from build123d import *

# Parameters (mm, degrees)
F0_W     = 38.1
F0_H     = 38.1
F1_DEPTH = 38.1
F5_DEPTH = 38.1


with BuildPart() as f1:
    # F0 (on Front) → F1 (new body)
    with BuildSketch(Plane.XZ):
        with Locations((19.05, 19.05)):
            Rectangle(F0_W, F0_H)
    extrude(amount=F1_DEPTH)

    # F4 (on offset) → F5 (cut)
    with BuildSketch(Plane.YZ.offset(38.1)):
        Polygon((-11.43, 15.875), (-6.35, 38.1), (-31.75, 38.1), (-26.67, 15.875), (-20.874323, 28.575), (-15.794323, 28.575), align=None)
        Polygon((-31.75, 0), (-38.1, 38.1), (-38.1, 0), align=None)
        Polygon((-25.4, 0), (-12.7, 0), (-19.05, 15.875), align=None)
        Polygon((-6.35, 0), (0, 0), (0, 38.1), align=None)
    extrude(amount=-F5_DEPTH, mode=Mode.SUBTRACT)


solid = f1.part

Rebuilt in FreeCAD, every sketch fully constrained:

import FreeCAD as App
import Part
import Sketcher
from FreeCAD import Vector
Q = App.Units.Quantity

doc = App.newDocument("Part")
body = doc.addObject("PartDesign::Body", "Body")

sketch1 = body.newObject("Sketcher::SketchObject", "Sketch")
sketch1.AttachmentSupport = (doc.getObject("XZ_Plane"), [""])
sketch1.MapMode = "FlatFace"
sketch1.addGeometry(Part.LineSegment(Vector(0, 38, 0), Vector(0, 0, 0)), False)
sketch1.addGeometry(Part.LineSegment(Vector(0, 0, 0), Vector(38, 0, 0)), False)
sketch1.addGeometry(Part.LineSegment(Vector(38, 0, 0), Vector(38, 38, 0)), False)
sketch1.addGeometry(Part.LineSegment(Vector(38, 38, 0), Vector(0, 38, 0)), False)
sketch1.addConstraint(Sketcher.Constraint("Coincident", 0, 2, 1, 1))
sketch1.addConstraint(Sketcher.Constraint("Coincident", 1, 2, 2, 1))
sketch1.addConstraint(Sketcher.Constraint("Coincident", 2, 2, 3, 1))
sketch1.addConstraint(Sketcher.Constraint("Coincident", 3, 2, 0, 1))
sketch1.addConstraint(Sketcher.Constraint("Vertical", 0))
sketch1.addConstraint(Sketcher.Constraint("Horizontal", 1))
sketch1.addConstraint(Sketcher.Constraint("Vertical", 2))
sketch1.addConstraint(Sketcher.Constraint("Horizontal", 3))
sketch1.addConstraint(Sketcher.Constraint("Coincident", 0, 2, -1, 1))
sketch1.addConstraint(Sketcher.Constraint("Equal", 3, 0))
sketch1.addConstraint(Sketcher.Constraint("DistanceX", 1, 1, 1, 2, Q("1.5 in")))
pad1 = body.newObject("PartDesign::Pad", "Pad")
pad1.Profile = sketch1
pad1.Length = Q("1.5 in")

sketch2 = body.newObject("Sketcher::SketchObject", "Sketch001")
sketch2.AttachmentSupport = (doc.getObject("YZ_Plane"), [""])
sketch2.MapMode = "FlatFace"
sketch2.AttachmentOffset = App.Placement(Vector(0, 0, 1.5 * 25.4), App.Rotation())
sketch2.addGeometry(Part.LineSegment(Vector(-11, 16, 0), Vector(-6, 38, 0)), False)
sketch2.addGeometry(Part.LineSegment(Vector(-6, 38, 0), Vector(-32, 38, 0)), False)
sketch2.addGeometry(Part.LineSegment(Vector(-32, 38, 0), Vector(-27, 16, 0)), False)
sketch2.addGeometry(Part.LineSegment(Vector(-27, 16, 0), Vector(-21, 29, 0)), False)
sketch2.addGeometry(Part.LineSegment(Vector(-21, 29, 0), Vector(-16, 29, 0)), False)
sketch2.addGeometry(Part.LineSegment(Vector(-16, 29, 0), Vector(-11, 16, 0)), False)
sketch2.addGeometry(Part.LineSegment(Vector(-32, 0, 0), Vector(-38, 38, 0)), False)
sketch2.addGeometry(Part.LineSegment(Vector(-38, 38, 0), Vector(-38, 0, 0)), False)
sketch2.addGeometry(Part.LineSegment(Vector(-38, 0, 0), Vector(-32, 0, 0)), False)
sketch2.addGeometry(Part.LineSegment(Vector(-25, 0, 0), Vector(-13, 0, 0)), False)
sketch2.addGeometry(Part.LineSegment(Vector(-13, 0, 0), Vector(-19, 16, 0)), False)
sketch2.addGeometry(Part.LineSegment(Vector(-19, 16, 0), Vector(-25, 0, 0)), False)
sketch2.addGeometry(Part.LineSegment(Vector(-6, 0, 0), Vector(0, 0, 0)), False)
sketch2.addGeometry(Part.LineSegment(Vector(0, 0, 0), Vector(0, 38, 0)), False)
sketch2.addGeometry(Part.LineSegment(Vector(0, 38, 0), Vector(-6, 0, 0)), False)
sketch2.addConstraint(Sketcher.Constraint("Coincident", 0, 2, 1, 1))
sketch2.addConstraint(Sketcher.Constraint("Coincident", 1, 2, 2, 1))
sketch2.addConstraint(Sketcher.Constraint("Coincident", 2, 2, 3, 1))
sketch2.addConstraint(Sketcher.Constraint("Coincident", 3, 2, 4, 1))
sketch2.addConstraint(Sketcher.Constraint("Coincident", 4, 2, 5, 1))
sketch2.addConstraint(Sketcher.Constraint("Coincident", 5, 2, 0, 1))
sketch2.addConstraint(Sketcher.Constraint("Coincident", 6, 2, 7, 1))
sketch2.addConstraint(Sketcher.Constraint("Coincident", 7, 2, 8, 1))
sketch2.addConstraint(Sketcher.Constraint("Coincident", 8, 2, 6, 1))
sketch2.addConstraint(Sketcher.Constraint("Coincident", 9, 2, 10, 1))
sketch2.addConstraint(Sketcher.Constraint("Coincident", 10, 2, 11, 1))
sketch2.addConstraint(Sketcher.Constraint("Coincident", 11, 2, 9, 1))
sketch2.addConstraint(Sketcher.Constraint("Coincident", 12, 2, 13, 1))
sketch2.addConstraint(Sketcher.Constraint("Coincident", 13, 2, 14, 1))
sketch2.addConstraint(Sketcher.Constraint("Coincident", 14, 2, 12, 1))
sketch2.addConstraint(Sketcher.Constraint("Horizontal", 1))
sketch2.addConstraint(Sketcher.Constraint("Horizontal", 4))
sketch2.addConstraint(Sketcher.Constraint("Vertical", 7))
sketch2.addConstraint(Sketcher.Constraint("Horizontal", 8))
sketch2.addConstraint(Sketcher.Constraint("Horizontal", 9))
sketch2.addConstraint(Sketcher.Constraint("Horizontal", 12))
sketch2.addConstraint(Sketcher.Constraint("Vertical", 13))
sketch2.addConstraint(Sketcher.Constraint("Coincident", 12, 2, -1, 1))
sketch2.addConstraint(Sketcher.Constraint("PointOnObject", 7, 2, -1))
sketch2.addConstraint(Sketcher.Constraint("PointOnObject", 9, 2, -1))
sketch2.addConstraint(Sketcher.Constraint("Horizontal", 2, 2, 5, 2))
sketch2.addConstraint(Sketcher.Constraint("Horizontal", 1, 2, 6, 2))
sketch2.addConstraint(Sketcher.Constraint("Horizontal", 5, 2, 10, 2))
sketch2.addConstraint(Sketcher.Constraint("Horizontal", 6, 2, 13, 2))
sketch2.addConstraint(Sketcher.Constraint("Vertical", 1, 2, 8, 2))
sketch2.addConstraint(Sketcher.Constraint("Vertical", 0, 2, 14, 2))
sketch2.addConstraint(Sketcher.Constraint("Equal", 8, 12))
sketch2.addConstraint(Sketcher.Constraint("Equal", 0, 2))
sketch2.addConstraint(Sketcher.Constraint("Equal", 10, 11))
sketch2.addConstraint(Sketcher.Constraint("DistanceX", 1, 2, 1, 1, Q("1 in")))
sketch2.addConstraint(Sketcher.Constraint("DistanceX", 4, 1, 4, 2, Q("0.2 in")))
sketch2.addConstraint(Sketcher.Constraint("DistanceX", 9, 1, 9, 2, Q("0.5 in")))
sketch2.addConstraint(Sketcher.Constraint("DistanceY", 7, 2, 7, 1, Q("1.5 in")))
sketch2.addConstraint(Sketcher.Constraint("DistanceX", 11, 2, -1, 1, Q("1 in")))
sketch2.addConstraint(Sketcher.Constraint("DistanceX", 7, 2, 9, 2, Q("1 in")))
sketch2.addConstraint(Sketcher.Constraint("DistanceX", 1, 2, 2, 2, Q("0.2 in")))
sketch2.addConstraint(Sketcher.Constraint("DistanceY", 2, 2, 3, 2, Q("0.5 in")))
sketch2.addConstraint(Sketcher.Constraint("DistanceY", -1, 1, 2, 2, Q("0.625 in")))
sketch2.addConstraint(Sketcher.Constraint("Distance", 3, 13.959938))
pocket1 = body.newObject("PartDesign::Pocket", "Pocket")
pocket1.Profile = sketch2
pocket1.Length = Q("1.5 in")

doc.recompute()
